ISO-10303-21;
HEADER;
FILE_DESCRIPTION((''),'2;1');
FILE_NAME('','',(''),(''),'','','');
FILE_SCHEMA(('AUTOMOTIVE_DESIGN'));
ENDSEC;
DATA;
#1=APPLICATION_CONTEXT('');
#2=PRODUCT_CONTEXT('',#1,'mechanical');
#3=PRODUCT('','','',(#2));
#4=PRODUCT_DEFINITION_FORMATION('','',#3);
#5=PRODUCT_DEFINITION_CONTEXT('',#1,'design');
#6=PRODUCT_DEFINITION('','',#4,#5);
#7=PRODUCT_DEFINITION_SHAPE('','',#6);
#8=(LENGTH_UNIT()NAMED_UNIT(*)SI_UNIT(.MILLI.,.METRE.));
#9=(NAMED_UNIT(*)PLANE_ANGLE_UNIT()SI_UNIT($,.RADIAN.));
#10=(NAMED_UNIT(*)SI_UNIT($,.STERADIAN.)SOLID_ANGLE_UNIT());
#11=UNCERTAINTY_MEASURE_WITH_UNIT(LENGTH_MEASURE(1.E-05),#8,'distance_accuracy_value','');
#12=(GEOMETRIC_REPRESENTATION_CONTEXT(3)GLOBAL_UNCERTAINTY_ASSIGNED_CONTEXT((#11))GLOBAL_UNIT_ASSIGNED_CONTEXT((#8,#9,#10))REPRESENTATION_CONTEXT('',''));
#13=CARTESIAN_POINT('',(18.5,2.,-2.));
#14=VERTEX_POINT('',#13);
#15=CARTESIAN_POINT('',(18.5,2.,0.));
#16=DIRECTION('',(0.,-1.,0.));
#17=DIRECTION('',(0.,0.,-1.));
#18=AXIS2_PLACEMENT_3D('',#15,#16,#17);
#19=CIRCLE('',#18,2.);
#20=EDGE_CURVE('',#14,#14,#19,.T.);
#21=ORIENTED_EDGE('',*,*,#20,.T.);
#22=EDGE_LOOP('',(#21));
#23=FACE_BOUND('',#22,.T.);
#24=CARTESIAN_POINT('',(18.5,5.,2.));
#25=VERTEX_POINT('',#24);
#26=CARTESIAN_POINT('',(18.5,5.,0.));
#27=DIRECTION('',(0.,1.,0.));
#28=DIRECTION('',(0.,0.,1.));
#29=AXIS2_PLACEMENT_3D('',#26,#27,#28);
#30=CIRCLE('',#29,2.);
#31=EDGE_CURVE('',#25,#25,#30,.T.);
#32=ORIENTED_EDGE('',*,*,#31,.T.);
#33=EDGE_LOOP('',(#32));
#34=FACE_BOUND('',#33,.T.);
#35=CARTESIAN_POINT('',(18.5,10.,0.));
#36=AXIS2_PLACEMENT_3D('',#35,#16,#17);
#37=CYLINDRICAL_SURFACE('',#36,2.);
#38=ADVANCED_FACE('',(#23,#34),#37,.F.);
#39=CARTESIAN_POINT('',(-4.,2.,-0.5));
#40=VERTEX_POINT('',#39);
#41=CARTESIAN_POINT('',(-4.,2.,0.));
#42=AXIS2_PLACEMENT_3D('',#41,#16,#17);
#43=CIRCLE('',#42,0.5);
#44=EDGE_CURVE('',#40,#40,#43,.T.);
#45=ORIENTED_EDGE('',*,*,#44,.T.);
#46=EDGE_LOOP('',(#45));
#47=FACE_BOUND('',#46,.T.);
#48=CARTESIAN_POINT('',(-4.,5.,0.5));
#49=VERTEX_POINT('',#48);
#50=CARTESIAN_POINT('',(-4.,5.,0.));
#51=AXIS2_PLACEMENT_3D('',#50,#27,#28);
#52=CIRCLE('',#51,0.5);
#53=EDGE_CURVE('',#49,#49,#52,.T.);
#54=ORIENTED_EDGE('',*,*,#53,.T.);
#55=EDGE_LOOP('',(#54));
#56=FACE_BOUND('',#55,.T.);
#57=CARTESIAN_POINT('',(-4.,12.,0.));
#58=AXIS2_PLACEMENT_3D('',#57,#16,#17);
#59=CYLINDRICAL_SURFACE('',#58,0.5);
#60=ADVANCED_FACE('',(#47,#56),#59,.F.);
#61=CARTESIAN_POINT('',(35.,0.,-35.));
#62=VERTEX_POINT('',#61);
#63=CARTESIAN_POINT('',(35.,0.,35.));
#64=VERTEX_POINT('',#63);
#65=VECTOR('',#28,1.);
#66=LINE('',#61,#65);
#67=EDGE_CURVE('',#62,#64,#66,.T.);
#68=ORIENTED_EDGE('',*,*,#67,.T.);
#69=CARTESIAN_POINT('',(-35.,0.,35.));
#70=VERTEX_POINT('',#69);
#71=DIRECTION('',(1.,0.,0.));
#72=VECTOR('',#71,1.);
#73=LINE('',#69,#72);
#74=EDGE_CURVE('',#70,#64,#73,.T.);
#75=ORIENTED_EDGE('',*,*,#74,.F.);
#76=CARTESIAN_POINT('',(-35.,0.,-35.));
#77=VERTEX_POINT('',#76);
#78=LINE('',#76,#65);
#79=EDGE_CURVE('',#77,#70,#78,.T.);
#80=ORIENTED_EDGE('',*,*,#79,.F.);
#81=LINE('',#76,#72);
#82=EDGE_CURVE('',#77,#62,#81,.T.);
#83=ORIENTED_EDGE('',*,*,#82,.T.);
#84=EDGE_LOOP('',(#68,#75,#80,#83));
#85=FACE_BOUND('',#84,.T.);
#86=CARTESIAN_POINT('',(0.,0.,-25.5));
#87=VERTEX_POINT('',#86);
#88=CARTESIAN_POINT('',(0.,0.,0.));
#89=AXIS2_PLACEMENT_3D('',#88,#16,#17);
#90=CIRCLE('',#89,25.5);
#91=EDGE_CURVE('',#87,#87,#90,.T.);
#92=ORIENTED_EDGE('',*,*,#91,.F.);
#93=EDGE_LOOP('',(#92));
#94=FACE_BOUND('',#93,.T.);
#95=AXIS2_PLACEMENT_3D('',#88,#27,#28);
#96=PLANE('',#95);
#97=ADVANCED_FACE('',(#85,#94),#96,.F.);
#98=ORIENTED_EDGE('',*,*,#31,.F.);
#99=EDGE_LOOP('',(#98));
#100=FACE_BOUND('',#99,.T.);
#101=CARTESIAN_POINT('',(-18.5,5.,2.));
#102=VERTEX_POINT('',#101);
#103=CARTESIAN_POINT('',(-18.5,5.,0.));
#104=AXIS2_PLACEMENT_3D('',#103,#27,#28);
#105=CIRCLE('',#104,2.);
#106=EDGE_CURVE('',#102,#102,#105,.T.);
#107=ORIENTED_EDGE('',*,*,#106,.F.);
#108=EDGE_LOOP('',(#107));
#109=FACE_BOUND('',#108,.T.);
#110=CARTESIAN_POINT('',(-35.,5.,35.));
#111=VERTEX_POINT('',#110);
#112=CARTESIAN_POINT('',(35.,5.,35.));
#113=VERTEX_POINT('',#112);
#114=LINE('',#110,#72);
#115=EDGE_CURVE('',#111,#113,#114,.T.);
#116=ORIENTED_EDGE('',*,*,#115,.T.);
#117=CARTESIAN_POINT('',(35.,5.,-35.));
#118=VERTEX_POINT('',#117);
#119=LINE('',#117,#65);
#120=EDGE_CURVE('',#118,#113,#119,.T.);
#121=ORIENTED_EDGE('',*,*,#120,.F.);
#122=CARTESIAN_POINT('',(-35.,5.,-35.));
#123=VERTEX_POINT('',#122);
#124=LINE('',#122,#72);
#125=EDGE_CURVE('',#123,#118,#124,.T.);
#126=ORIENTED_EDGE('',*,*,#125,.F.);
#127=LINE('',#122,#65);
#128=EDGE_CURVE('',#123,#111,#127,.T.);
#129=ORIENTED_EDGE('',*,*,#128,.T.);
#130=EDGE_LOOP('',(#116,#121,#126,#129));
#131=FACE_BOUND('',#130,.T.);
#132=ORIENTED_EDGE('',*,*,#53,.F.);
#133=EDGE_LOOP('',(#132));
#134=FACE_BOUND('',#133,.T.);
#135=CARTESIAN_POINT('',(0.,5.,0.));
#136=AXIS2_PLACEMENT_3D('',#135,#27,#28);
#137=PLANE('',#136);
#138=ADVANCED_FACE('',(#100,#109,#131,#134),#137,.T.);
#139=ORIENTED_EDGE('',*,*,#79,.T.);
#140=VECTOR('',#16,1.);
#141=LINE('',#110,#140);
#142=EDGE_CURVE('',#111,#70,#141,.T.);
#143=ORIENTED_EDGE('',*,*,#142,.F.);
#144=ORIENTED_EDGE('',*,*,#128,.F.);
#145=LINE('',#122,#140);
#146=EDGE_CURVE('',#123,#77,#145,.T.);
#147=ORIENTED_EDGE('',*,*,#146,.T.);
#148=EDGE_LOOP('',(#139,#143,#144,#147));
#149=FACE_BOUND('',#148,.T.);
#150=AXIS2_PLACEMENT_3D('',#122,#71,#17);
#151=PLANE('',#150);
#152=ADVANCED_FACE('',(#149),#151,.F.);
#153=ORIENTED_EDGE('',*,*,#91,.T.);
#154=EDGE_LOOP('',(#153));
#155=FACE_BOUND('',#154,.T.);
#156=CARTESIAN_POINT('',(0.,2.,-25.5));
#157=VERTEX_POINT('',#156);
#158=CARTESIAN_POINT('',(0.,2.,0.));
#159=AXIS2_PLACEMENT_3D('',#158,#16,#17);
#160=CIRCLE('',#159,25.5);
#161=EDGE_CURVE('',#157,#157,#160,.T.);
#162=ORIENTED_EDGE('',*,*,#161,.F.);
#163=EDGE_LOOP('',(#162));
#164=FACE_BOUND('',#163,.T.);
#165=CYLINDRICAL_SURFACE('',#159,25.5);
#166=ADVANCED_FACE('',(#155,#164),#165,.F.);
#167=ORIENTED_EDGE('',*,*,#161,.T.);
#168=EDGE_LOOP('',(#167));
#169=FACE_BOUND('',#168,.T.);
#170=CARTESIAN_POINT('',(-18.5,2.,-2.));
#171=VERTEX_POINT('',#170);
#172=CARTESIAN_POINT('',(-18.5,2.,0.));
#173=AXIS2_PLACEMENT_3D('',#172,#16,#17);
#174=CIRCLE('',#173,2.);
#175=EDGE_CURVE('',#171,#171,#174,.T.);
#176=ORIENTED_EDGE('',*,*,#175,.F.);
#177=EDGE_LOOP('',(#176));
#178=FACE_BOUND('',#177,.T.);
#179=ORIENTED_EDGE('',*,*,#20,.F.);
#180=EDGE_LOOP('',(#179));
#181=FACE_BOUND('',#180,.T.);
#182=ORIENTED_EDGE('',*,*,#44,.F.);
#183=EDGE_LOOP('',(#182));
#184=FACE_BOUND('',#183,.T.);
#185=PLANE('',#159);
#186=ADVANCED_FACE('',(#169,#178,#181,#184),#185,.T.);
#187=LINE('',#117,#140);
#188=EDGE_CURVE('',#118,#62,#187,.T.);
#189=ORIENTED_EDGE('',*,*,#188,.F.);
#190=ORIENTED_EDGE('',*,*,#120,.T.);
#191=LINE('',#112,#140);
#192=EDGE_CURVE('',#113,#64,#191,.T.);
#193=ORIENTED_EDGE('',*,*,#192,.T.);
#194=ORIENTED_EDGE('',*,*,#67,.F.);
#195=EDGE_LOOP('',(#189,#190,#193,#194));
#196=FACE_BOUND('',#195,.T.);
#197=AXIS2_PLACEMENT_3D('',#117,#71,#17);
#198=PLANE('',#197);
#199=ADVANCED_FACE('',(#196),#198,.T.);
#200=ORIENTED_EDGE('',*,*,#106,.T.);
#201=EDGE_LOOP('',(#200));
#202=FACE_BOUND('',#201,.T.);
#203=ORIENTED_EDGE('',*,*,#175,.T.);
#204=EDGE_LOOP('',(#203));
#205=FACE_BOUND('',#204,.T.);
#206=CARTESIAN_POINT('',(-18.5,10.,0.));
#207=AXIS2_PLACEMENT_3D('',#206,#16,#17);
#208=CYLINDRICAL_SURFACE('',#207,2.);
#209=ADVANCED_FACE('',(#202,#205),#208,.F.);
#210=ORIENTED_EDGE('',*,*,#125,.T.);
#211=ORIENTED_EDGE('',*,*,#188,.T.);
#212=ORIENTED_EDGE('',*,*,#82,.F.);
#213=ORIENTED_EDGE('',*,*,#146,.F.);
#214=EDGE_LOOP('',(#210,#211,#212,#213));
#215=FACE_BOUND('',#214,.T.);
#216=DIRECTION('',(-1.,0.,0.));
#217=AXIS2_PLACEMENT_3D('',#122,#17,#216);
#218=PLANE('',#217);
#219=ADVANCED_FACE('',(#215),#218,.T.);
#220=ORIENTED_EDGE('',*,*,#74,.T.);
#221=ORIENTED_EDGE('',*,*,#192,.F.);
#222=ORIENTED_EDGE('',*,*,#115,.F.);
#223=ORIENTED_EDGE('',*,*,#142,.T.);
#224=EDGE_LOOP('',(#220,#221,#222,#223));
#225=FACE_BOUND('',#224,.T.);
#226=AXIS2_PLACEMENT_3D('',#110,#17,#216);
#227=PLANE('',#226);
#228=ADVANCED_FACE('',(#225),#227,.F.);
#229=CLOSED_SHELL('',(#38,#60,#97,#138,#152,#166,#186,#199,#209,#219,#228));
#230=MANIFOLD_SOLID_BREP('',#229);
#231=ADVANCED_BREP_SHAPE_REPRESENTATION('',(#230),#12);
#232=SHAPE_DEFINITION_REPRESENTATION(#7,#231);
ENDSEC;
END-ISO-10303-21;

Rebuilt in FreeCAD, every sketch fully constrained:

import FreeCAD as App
import Part
import Sketcher

V = App.Vector


def add_polygon(sketch, points):
    """Adds a closed chain of lines whose ends are joined by coincident constraints."""
    first, n = sketch.GeometryCount, len(points)
    for a, b in zip(points, points[1:] + points[:1]):
        sketch.addGeometry(Part.LineSegment(App.Vector(*a, 0), App.Vector(*b, 0)), False)
    for i in range(n):
        sketch.addConstraint(Sketcher.Constraint("Coincident", first + i, 2, first + (i + 1) % n, 1))

doc = App.newDocument("Part")
body = doc.addObject("PartDesign::Body", "Body")

# Sketch on XZ plane
sketch1 = doc.addObject("Sketcher::SketchObject", "Sketch")
body.addObject(sketch1)
sketch1.AttachmentSupport = (doc.XZ_Plane, [""])
sketch1.MapMode = "FlatFace"
add_polygon(sketch1, [(-35, -35), (-35, 35), (35, 35), (35, -35)])  # lines 0-3
sketch1.addConstraint(Sketcher.Constraint("Vertical", 0))
sketch1.addConstraint(Sketcher.Constraint("Horizontal", 1))
sketch1.addConstraint(Sketcher.Constraint("Vertical", 2))
sketch1.addConstraint(Sketcher.Constraint("Horizontal", 3))
sketch1.addConstraint(Sketcher.Constraint("Symmetric", 0, 2, 2, 2, -1, 1))
sketch1.addConstraint(Sketcher.Constraint("Equal", 3, 0))
sketch1.addConstraint(Sketcher.Constraint("DistanceX", 1, 1, 1, 2, 70.0))
pad1 = doc.addObject("PartDesign::Pad", "Pad")
body.addObject(pad1)
pad1.Profile = sketch1
pad1.Length = 5
pad1.Reversed = True

# Sketch on XZ plane
sketch2 = doc.addObject("Sketcher::SketchObject", "Sketch001")
body.addObject(sketch2)
sketch2.AttachmentSupport = (doc.XZ_Plane, [""])
sketch2.MapMode = "FlatFace"
sketch2.addGeometry(Part.Circle(V(0, 0, 0), V(0, 0, 1), 25.5), False)
sketch2.addGeometry(Part.Circle(V(-18.5, 0, 0), V(0, 0, 1), 2), False)
sketch2.addGeometry(Part.Circle(V(18.5, 0, 0), V(0, 0, 1), 2), False)
sketch2.addConstraint(Sketcher.Constraint("Coincident", 0, 3, -1, 1))
sketch2.addConstraint(Sketcher.Constraint("Equal", 1, 2))
sketch2.addConstraint(Sketcher.Constraint("Symmetric", 1, 3, 2, 3, -1, 1))
sketch2.addConstraint(Sketcher.Constraint("PointOnObject", 1, 3, -1))
sketch2.addConstraint(Sketcher.Constraint("Diameter", 0, 51.0))
sketch2.addConstraint(Sketcher.Constraint("Diameter", 1, 4.0))
sketch2.addConstraint(Sketcher.Constraint("DistanceX", 1, 3, 2, 3, 37.0))
pocket1 = doc.addObject("PartDesign::Pocket", "Pocket")
body.addObject(pocket1)
pocket1.Profile = sketch2
pocket1.Length = 2

# Sketch on XZ plane
sketch3 = doc.addObject("Sketcher::SketchObject", "Sketch002")
body.addObject(sketch3)
sketch3.AttachmentSupport = (doc.XZ_Plane, [""])
sketch3.MapMode = "FlatFace"
sketch3.addGeometry(Part.Circle(V(18.5, 0, 0), V(0, 0, 1), 2), False)
sketch3.addConstraint(Sketcher.Constraint("PointOnObject", 0, 3, -1))
sketch3.addConstraint(Sketcher.Constraint("Diameter", 0, 4.0))
sketch3.addConstraint(Sketcher.Constraint("DistanceX", -1, 1, 0, 3, 18.5))
pocket2 = doc.addObject("PartDesign::Pocket", "Pocket001")
body.addObject(pocket2)
pocket2.Profile = sketch3
pocket2.Length = 10

# Sketch on XZ plane
sketch4 = doc.addObject("Sketcher::SketchObject", "Sketch003")
body.addObject(sketch4)
sketch4.AttachmentSupport = (doc.XZ_Plane, [""])
sketch4.MapMode = "FlatFace"
sketch4.addGeometry(Part.Circle(V(-18.5, 0, 0), V(0, 0, 1), 2), False)
sketch4.addConstraint(Sketcher.Constraint("PointOnObject", 0, 3, -1))
sketch4.addConstraint(Sketcher.Constraint("Diameter", 0, 4.0))
sketch4.addConstraint(Sketcher.Constraint("DistanceX", 0, 3, -1, 1, 18.5))
pocket3 = doc.addObject("PartDesign::Pocket", "Pocket002")
body.addObject(pocket3)
pocket3.Profile = sketch4
pocket3.Length = 10

# Sketch on XZ plane
sketch5 = doc.addObject("Sketcher::SketchObject", "Sketch004")
body.addObject(sketch5)
sketch5.AttachmentSupport = (doc.XZ_Plane, [""])
sketch5.MapMode = "FlatFace"
sketch5.AttachmentOffset = App.Placement(V(0, 0, -2), App.Rotation())
sketch5.addGeometry(Part.Circle(V(-4, 0, 0), V(0, 0, 1), 0.5), False)
sketch5.addConstraint(Sketcher.Constraint("PointOnObject", 0, 3, -1))
sketch5.addConstraint(Sketcher.Constraint("Diameter", 0, 1.0))
sketch5.addConstraint(Sketcher.Constraint("DistanceX", 0, 3, -1, 1, 4.0))
pocket4 = doc.addObject("PartDesign::Pocket", "Pocket003")
body.addObject(pocket4)
pocket4.Profile = sketch5
pocket4.Length = 10

doc.recompute()
